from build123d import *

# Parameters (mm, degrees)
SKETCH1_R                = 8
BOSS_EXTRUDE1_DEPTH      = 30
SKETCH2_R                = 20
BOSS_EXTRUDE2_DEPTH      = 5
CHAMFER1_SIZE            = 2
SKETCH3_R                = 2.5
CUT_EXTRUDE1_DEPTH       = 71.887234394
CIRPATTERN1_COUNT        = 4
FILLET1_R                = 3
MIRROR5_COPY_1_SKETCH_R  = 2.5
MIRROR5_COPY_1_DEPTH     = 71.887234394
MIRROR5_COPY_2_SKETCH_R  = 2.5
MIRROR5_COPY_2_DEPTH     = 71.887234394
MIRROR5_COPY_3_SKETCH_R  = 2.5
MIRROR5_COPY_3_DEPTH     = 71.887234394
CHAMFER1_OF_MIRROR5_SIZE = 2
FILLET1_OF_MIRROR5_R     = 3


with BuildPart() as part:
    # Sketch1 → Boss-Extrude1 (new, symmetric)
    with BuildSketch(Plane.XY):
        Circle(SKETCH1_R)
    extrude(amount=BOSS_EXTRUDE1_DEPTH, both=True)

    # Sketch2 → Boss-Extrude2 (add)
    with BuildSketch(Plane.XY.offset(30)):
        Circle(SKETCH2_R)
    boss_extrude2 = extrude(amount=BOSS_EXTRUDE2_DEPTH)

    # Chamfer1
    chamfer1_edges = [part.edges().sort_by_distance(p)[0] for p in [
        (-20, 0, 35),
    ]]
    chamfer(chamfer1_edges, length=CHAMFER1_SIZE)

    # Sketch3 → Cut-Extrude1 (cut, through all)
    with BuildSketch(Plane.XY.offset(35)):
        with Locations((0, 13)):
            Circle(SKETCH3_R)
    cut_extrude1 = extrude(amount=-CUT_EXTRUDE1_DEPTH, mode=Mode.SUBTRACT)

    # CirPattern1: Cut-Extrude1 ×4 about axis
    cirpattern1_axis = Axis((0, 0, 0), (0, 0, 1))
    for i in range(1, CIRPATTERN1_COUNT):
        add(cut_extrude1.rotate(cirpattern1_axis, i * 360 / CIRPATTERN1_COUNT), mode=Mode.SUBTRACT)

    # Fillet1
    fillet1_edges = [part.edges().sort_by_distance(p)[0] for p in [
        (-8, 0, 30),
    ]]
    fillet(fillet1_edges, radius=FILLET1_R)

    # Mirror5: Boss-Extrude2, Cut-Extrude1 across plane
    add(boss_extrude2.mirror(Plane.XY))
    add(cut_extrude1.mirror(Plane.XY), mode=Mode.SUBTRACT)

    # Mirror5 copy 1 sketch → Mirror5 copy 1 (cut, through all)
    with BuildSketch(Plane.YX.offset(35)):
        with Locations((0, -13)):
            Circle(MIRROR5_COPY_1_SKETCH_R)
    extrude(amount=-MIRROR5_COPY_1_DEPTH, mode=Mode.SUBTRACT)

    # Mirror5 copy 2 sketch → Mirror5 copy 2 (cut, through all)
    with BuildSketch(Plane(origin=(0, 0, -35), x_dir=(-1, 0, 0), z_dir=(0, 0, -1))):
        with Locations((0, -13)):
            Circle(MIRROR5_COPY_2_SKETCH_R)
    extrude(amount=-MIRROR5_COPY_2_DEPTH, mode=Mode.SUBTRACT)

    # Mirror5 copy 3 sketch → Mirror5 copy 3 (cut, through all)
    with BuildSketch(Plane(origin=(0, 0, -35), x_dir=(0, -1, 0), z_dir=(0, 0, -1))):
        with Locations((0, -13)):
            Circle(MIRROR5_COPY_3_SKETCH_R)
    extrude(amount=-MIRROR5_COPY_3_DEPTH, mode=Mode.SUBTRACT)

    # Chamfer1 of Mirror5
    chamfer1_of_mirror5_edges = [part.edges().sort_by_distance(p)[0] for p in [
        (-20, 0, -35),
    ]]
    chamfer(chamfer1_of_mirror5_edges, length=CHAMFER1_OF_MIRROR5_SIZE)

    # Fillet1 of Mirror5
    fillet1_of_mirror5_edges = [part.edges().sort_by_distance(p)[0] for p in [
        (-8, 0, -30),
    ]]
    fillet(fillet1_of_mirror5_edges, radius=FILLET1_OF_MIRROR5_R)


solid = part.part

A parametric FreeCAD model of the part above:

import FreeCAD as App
import Part
import Sketcher


def edges_at(feature, points):
    """Names of the edges that pass closest to the given points."""
    edges = feature.Shape.Edges
    near = lambda p: min(range(len(edges)), key=lambda i: edges[i].distToShape(Part.Vertex(*p))[0])
    return sorted({f"Edge{near(p) + 1}" for p in points})

doc = App.newDocument("Part")
body = doc.addObject("PartDesign::Body", "Body")

# Sketch on XY plane
sketch1 = body.newObject("Sketcher::SketchObject", "Sketch")
sketch1.AttachmentSupport = (doc.getObject("XY_Plane"), [""])
sketch1.MapMode = "FlatFace"
sketch1.addGeometry(Part.Circle(App.Vector(0, 0, 0), App.Vector(0, 0, 1), 8), False)
sketch1.addConstraint([
    Sketcher.Constraint("Coincident", 0, 3, -1, 1),
    Sketcher.Constraint("Diameter", 0, 16.0),
])
pad1 = body.newObject("PartDesign::Pad", "Pad")
pad1.Profile = sketch1
pad1.Length = 60
pad1.Midplane = True

# Sketch on XY plane
sketch2 = body.newObject("Sketcher::SketchObject", "Sketch001")
sketch2.AttachmentSupport = (doc.getObject("XY_Plane"), [""])
sketch2.MapMode = "FlatFace"
sketch2.AttachmentOffset = App.Placement(App.Vector(0, 0, 30), App.Rotation())
sketch2.addGeometry(Part.Circle(App.Vector(0, 0, 0), App.Vector(0, 0, 1), 20), False)
sketch2.addConstraint([
    Sketcher.Constraint("Coincident", 0, 3, -1, 1),
    Sketcher.Constraint("Diameter", 0, 40.0),
])
pad2 = body.newObject("PartDesign::Pad", "Pad001")
pad2.Profile = sketch2
pad2.Length = 5
doc.recompute()

chamfer = body.newObject("PartDesign::Chamfer", "Chamfer")
chamfer.Base = (pad2, edges_at(pad2, [(-20, 0, 35)]))
chamfer.Size = 2

# Sketch on XY plane
sketch3 = body.newObject("Sketcher::SketchObject", "Sketch002")
sketch3.AttachmentSupport = (doc.getObject("XY_Plane"), [""])
sketch3.MapMode = "FlatFace"
sketch3.AttachmentOffset = App.Placement(App.Vector(0, 0, 35), App.Rotation())
sketch3.addGeometry(Part.Circle(App.Vector(0, 13, 0), App.Vector(0, 0, 1), 2.5), False)
sketch3.addConstraint([
    Sketcher.Constraint("PointOnObject", 0, 3, -2),
    Sketcher.Constraint("Diameter", 0, 5.0),
    Sketcher.Constraint("DistanceY", -1, 1, 0, 3, 13.0),
])
pocket1 = body.newObject("PartDesign::Pocket", "Pocket")
pocket1.Profile = sketch3
pocket1.Type = "ThroughAll"
doc.recompute()

polarpattern = body.newObject("PartDesign::PolarPattern", "PolarPattern")
polarpattern.Originals = [pocket1]
polarpattern.Axis = (doc.getObject("Z_Axis"), [""])
polarpattern.Angle = 360
polarpattern.Occurrences = 4
body.Tip = polarpattern
doc.recompute()

fillet = body.newObject("PartDesign::Fillet", "Fillet")
fillet.Base = (polarpattern, edges_at(polarpattern, [(-8, 0, 30)]))
fillet.Radius = 3
doc.recompute()

mirrored = body.newObject("PartDesign::Mirrored", "Mirrored")
mirrored.Originals = [pad2, pocket1]
mirrored.MirrorPlane = (doc.getObject("XY_Plane"), [""])
body.Tip = mirrored

# Sketch on XY plane
sketch4 = body.newObject("Sketcher::SketchObject", "Sketch003")
sketch4.AttachmentSupport = (doc.getObject("XY_Plane"), [""])
sketch4.MapMode = "FlatFace"
sketch4.AttachmentOffset = App.Placement(App.Vector(0, 0, -35), App.Rotation())
sketch4.addGeometry(Part.Circle(App.Vector(-13, 0, 0), App.Vector(0, 0, 1), 2.5), False)
sketch4.addConstraint([
    Sketcher.Constraint("PointOnObject", 0, 3, -1),
    Sketcher.Constraint("Diameter", 0, 5.0),
    Sketcher.Constraint("DistanceX", 0, 3, -1, 1, 13.0),
])
pocket2 = body.newObject("PartDesign::Pocket", "Pocket001")
pocket2.Profile = sketch4
pocket2.Type = "ThroughAll"
pocket2.Reversed = True

# Sketch on XY plane
sketch5 = body.newObject("Sketcher::SketchObject", "Sketch004")
sketch5.AttachmentSupport = (doc.getObject("XY_Plane"), [""])
sketch5.MapMode = "FlatFace"
sketch5.AttachmentOffset = App.Placement(App.Vector(0, 0, -35), App.Rotation())
sketch5.addGeometry(Part.Circle(App.Vector(0, -13, 0), App.Vector(0, 0, 1), 2.5), False)
sketch5.addConstraint([
    Sketcher.Constraint("PointOnObject", 0, 3, -2),
    Sketcher.Constraint("Diameter", 0, 5.0),
    Sketcher.Constraint("DistanceY", 0, 3, -1, 1, 13.0),
])
pocket3 = body.newObject("PartDesign::Pocket", "Pocket002")
pocket3.Profile = sketch5
pocket3.Type = "ThroughAll"
pocket3.Reversed = True

# Sketch on XY plane
sketch6 = body.newObject("Sketcher::SketchObject", "Sketch005")
sketch6.AttachmentSupport = (doc.getObject("XY_Plane"), [""])
sketch6.MapMode = "FlatFace"
sketch6.AttachmentOffset = App.Placement(App.Vector(0, 0, -35), App.Rotation())
sketch6.addGeometry(Part.Circle(App.Vector(13, 0, 0), App.Vector(0, 0, 1), 2.5), False)
sketch6.addConstraint([
    Sketcher.Constraint("PointOnObject", 0, 3, -1),
    Sketcher.Constraint("Diameter", 0, 5.0),
    Sketcher.Constraint("DistanceX", -1, 1, 0, 3, 13.0),
])
pocket4 = body.newObject("PartDesign::Pocket", "Pocket003")
pocket4.Profile = sketch6
pocket4.Type = "ThroughAll"
pocket4.Reversed = True
doc.recompute()

chamfer2 = body.newObject("PartDesign::Chamfer", "Chamfer001")
chamfer2.Base = (pocket4, edges_at(pocket4, [(-20, 0, -35)]))
chamfer2.Size = 2
doc.recompute()

fillet2 = body.newObject("PartDesign::Fillet", "Fillet001")
fillet2.Base = (chamfer2, edges_at(chamfer2, [(-8, 0, -30)]))
fillet2.Radius = 3

doc.recompute()
